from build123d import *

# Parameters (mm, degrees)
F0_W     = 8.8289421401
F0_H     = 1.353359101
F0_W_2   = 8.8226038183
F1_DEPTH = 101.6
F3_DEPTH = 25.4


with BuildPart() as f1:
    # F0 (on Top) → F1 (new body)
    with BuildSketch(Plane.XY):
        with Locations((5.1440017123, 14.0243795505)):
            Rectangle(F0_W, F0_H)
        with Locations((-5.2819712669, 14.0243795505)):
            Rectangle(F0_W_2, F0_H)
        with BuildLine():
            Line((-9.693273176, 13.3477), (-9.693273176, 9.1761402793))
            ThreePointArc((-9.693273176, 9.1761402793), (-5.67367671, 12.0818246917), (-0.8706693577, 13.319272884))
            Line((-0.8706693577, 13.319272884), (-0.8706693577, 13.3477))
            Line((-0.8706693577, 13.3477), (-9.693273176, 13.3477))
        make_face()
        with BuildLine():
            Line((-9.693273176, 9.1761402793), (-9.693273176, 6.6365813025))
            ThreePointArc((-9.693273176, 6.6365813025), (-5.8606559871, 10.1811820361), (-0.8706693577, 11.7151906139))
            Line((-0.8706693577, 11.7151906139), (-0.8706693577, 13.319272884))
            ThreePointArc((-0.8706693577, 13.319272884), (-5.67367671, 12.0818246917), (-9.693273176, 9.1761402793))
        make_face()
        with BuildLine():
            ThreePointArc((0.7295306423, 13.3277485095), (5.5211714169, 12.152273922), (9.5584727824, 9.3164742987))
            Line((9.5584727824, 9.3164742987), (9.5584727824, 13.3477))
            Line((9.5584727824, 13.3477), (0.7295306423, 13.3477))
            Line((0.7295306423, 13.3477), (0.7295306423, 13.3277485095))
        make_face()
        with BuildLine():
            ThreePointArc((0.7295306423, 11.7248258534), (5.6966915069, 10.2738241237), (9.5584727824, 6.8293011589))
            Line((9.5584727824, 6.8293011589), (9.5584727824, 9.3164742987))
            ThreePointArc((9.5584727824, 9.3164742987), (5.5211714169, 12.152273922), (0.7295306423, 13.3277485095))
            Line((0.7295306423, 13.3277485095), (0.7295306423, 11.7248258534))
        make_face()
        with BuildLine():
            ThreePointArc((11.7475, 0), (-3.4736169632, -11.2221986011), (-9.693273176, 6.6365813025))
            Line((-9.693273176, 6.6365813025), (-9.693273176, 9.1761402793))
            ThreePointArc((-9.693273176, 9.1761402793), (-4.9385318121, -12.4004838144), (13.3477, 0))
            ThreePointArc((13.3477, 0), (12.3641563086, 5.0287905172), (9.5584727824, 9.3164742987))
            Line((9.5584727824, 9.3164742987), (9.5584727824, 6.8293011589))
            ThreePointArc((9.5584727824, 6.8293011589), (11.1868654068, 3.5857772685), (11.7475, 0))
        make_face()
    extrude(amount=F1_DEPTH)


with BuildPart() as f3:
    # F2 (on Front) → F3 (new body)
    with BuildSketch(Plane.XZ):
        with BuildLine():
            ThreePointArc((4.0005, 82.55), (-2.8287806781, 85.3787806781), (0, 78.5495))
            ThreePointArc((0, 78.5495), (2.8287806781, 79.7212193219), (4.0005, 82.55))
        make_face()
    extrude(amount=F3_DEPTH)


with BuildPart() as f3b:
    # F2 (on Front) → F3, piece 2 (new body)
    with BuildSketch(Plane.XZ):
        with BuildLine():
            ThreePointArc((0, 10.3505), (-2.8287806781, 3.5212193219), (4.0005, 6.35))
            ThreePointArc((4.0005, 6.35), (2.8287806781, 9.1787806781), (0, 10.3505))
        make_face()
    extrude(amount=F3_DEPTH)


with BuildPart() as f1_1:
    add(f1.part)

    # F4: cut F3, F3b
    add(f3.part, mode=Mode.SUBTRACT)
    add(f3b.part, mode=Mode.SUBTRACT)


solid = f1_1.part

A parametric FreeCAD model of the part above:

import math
import FreeCAD as App
import Part
import Sketcher
Q = App.Units.Quantity

doc = App.newDocument("Part")
body = doc.addObject("PartDesign::Body", "Body")

sketch1 = body.newObject("Sketcher::SketchObject", "Sketch")
sketch1.AttachmentSupport = (doc.getObject("XY_Plane"), [""])
sketch1.MapMode = "FlatFace"
sketch1.addGeometry([
    Part.LineSegment(App.Vector(0.7, 14.7, 0), App.Vector(0.7, 13.3, 0)),
    Part.LineSegment(App.Vector(0.7, 13.3, 0), App.Vector(0.7, 11.7, 0)),
    Part.ArcOfCircle(Part.Circle(App.Vector(0, 0, 0), App.Vector(0, 0, 1), 11.7), math.radians(36), math.radians(86)),
    Part.ArcOfCircle(Part.Circle(App.Vector(0, 0, 0), App.Vector(0, 0, 1), 11.7), math.radians(0), math.radians(36)),
    Part.ArcOfCircle(Part.Circle(App.Vector(0, 0, 0), App.Vector(0, 0, 1), 11.7), math.radians(146), math.radians(360)),
    Part.ArcOfCircle(Part.Circle(App.Vector(0, 0, 0), App.Vector(0, 0, 1), 11.7), math.radians(94), math.radians(146)),
    Part.LineSegment(App.Vector(-0.9, 11.7, 0), App.Vector(-0.9, 13.3, 0)),
    Part.LineSegment(App.Vector(-0.9, 13.3, 0), App.Vector(-0.9, 14.7, 0)),
    Part.LineSegment(App.Vector(-0.9, 14.7, 0), App.Vector(-9.7, 14.7, 0)),
    Part.LineSegment(App.Vector(-9.7, 14.7, 0), App.Vector(-9.7, 9.2, 0)),
    Part.ArcOfCircle(Part.Circle(App.Vector(0, 0, 0), App.Vector(0, 0, 1), 13.3), math.radians(137), math.radians(360)),
    Part.ArcOfCircle(Part.Circle(App.Vector(0, 0, 0), App.Vector(0, 0, 1), 13.3), math.radians(0), math.radians(44)),
    Part.LineSegment(App.Vector(9.6, 9.3, 0), App.Vector(9.6, 13.3, 0)),
    Part.LineSegment(App.Vector(9.6, 13.3, 0), App.Vector(9.6, 14.7, 0)),
    Part.LineSegment(App.Vector(9.6, 14.7, 0), App.Vector(0.7, 14.7, 0)),
], False)
sketch1.addConstraint([
    Sketcher.Constraint("Coincident", 0, 2, 1, 1),
    Sketcher.Constraint("Coincident", 1, 2, 2, 2),
    Sketcher.Constraint("Tangent", 2, 1, 3, 2),
    Sketcher.Constraint("Tangent", 3, 1, 4, 2),
    Sketcher.Constraint("Tangent", 4, 1, 5, 2),
    Sketcher.Constraint("Coincident", 5, 1, 6, 1),
    Sketcher.Constraint("Coincident", 6, 2, 7, 1),
    Sketcher.Constraint("Coincident", 7, 2, 8, 1),
    Sketcher.Constraint("Coincident", 8, 2, 9, 1),
    Sketcher.Constraint("Coincident", 9, 2, 10, 1),
    Sketcher.Constraint("Tangent", 10, 2, 11, 1),
    Sketcher.Constraint("Coincident", 11, 2, 12, 1),
    Sketcher.Constraint("Coincident", 12, 2, 13, 1),
    Sketcher.Constraint("Coincident", 13, 2, 14, 1),
    Sketcher.Constraint("Coincident", 14, 2, 0, 1),
    Sketcher.Constraint("Vertical", 0),
    Sketcher.Constraint("Vertical", 1),
    Sketcher.Constraint("Vertical", 6),
    Sketcher.Constraint("Vertical", 7),
    Sketcher.Constraint("Horizontal", 8),
    Sketcher.Constraint("Vertical", 9),
    Sketcher.Constraint("Vertical", 12),
    Sketcher.Constraint("Vertical", 13),
    Sketcher.Constraint("Horizontal", 14),
    Sketcher.Constraint("Coincident", 2, 3, -1, 1),
    Sketcher.Constraint("Coincident", 4, 3, -1, 1),
    Sketcher.Constraint("Coincident", 10, 3, -1, 1),
    Sketcher.Constraint("Equal", 4, 5),
    Sketcher.Constraint("Equal", 10, 11),
    Sketcher.Constraint("PointOnObject", 3, 1, -1),
    Sketcher.Constraint("PointOnObject", 10, 2, -1),
    Sketcher.Constraint("Horizontal", 6, 2, 12, 2),
    Sketcher.Constraint("Horizontal", 8, 2, 13, 2),
    Sketcher.Constraint("Vertical", 4, 1, 8, 2),
    Sketcher.Constraint("Vertical", 2, 1, 11, 2),
    Sketcher.Constraint("Radius", 2, Q("0.4625 in")),
    Sketcher.Constraint("Radius", 10, Q("0.5255 in")),
    Sketcher.Constraint("DistanceX", 5, 1, 1, 2, Q("0.063 in")),
    Sketcher.Constraint("DistanceY", -1, 1, 6, 2, Q("0.5255 in")),
    Sketcher.Constraint("DistanceY", 0, 2, 0, 1, Q("1.373311 mm")),
    Sketcher.Constraint("DistanceY", 6, 1, 6, 2, Q("1.632509 mm")),
    Sketcher.Constraint("DistanceY", 7, 1, 7, 2, Q("1.353359 mm")),
    Sketcher.Constraint("DistanceY", 9, 2, 9, 1, Q("5.524919 mm")),
    Sketcher.Constraint("DistanceY", -1, 1, 2, 1, Q("6.829301 mm")),
])
pad1 = body.newObject("PartDesign::Pad", "Pad")
pad1.Profile = sketch1
pad1.Length = Q("4 in")
body2 = doc.addObject("PartDesign::Body", "Body001")

sketch2 = body2.newObject("Sketcher::SketchObject", "Sketch001")
sketch2.AttachmentSupport = (doc.getObject("XZ_Plane001"), [""])
sketch2.MapMode = "FlatFace"
sketch2.addGeometry([
    Part.ArcOfCircle(Part.Circle(App.Vector(0, 82.5, 0), App.Vector(0, 0, 1), 4), math.radians(0), math.radians(270)),
    Part.ArcOfCircle(Part.Circle(App.Vector(0, 82.5, 0), App.Vector(0, 0, 1), 4), math.radians(-90), math.radians(0)),
], False)
sketch2.addConstraint([
    Sketcher.Constraint("Tangent", 0, 1, 1, 2),
    Sketcher.Constraint("Coincident", 1, 1, 0, 2),
    Sketcher.Constraint("PointOnObject", 0, 3, -2),
    Sketcher.Constraint("PointOnObject", 1, 1, -2),
    Sketcher.Constraint("Horizontal", 1, 3, 0, 1),
    Sketcher.Constraint("Radius", 0, Q("0.1575 in")),
    Sketcher.Constraint("DistanceY", -1, 1, 0, 3, Q("3.25 in")),
])
pad2 = body2.newObject("PartDesign::Pad", "Pad001")
pad2.Profile = sketch2
pad2.Length = Q("1 in")
body3 = doc.addObject("PartDesign::Body", "Body002")

sketch3 = body3.newObject("Sketcher::SketchObject", "Sketch002")
sketch3.AttachmentSupport = (doc.getObject("XZ_Plane002"), [""])
sketch3.MapMode = "FlatFace"
sketch3.addGeometry([
    Part.ArcOfCircle(Part.Circle(App.Vector(0, 6.3, 0), App.Vector(0, 0, 1), 4), math.radians(90), math.radians(360)),
    Part.ArcOfCircle(Part.Circle(App.Vector(0, 6.3, 0), App.Vector(0, 0, 1), 4), math.radians(0), math.radians(90)),
], False)
sketch3.addConstraint([
    Sketcher.Constraint("Tangent", 0, 1, 1, 2),
    Sketcher.Constraint("Coincident", 1, 1, 0, 2),
    Sketcher.Constraint("PointOnObject", 0, 3, -2),
    Sketcher.Constraint("PointOnObject", 0, 1, -2),
    Sketcher.Constraint("Horizontal", 0, 3, 1, 1),
    Sketcher.Constraint("Radius", 0, Q("0.1575 in")),
    Sketcher.Constraint("DistanceY", -1, 1, 0, 3, Q("0.25 in")),
])
pad3 = body3.newObject("PartDesign::Pad", "Pad002")
pad3.Profile = sketch3
pad3.Length = Q("1 in")
doc.recompute()

boolean = body.newObject("PartDesign::Boolean", "Boolean")
boolean.Type = "Cut"
boolean.addObjects([body2])
doc.recompute()

boolean2 = body.newObject("PartDesign::Boolean", "Boolean001")
boolean2.Type = "Cut"
boolean2.addObjects([body3])

doc.recompute()
